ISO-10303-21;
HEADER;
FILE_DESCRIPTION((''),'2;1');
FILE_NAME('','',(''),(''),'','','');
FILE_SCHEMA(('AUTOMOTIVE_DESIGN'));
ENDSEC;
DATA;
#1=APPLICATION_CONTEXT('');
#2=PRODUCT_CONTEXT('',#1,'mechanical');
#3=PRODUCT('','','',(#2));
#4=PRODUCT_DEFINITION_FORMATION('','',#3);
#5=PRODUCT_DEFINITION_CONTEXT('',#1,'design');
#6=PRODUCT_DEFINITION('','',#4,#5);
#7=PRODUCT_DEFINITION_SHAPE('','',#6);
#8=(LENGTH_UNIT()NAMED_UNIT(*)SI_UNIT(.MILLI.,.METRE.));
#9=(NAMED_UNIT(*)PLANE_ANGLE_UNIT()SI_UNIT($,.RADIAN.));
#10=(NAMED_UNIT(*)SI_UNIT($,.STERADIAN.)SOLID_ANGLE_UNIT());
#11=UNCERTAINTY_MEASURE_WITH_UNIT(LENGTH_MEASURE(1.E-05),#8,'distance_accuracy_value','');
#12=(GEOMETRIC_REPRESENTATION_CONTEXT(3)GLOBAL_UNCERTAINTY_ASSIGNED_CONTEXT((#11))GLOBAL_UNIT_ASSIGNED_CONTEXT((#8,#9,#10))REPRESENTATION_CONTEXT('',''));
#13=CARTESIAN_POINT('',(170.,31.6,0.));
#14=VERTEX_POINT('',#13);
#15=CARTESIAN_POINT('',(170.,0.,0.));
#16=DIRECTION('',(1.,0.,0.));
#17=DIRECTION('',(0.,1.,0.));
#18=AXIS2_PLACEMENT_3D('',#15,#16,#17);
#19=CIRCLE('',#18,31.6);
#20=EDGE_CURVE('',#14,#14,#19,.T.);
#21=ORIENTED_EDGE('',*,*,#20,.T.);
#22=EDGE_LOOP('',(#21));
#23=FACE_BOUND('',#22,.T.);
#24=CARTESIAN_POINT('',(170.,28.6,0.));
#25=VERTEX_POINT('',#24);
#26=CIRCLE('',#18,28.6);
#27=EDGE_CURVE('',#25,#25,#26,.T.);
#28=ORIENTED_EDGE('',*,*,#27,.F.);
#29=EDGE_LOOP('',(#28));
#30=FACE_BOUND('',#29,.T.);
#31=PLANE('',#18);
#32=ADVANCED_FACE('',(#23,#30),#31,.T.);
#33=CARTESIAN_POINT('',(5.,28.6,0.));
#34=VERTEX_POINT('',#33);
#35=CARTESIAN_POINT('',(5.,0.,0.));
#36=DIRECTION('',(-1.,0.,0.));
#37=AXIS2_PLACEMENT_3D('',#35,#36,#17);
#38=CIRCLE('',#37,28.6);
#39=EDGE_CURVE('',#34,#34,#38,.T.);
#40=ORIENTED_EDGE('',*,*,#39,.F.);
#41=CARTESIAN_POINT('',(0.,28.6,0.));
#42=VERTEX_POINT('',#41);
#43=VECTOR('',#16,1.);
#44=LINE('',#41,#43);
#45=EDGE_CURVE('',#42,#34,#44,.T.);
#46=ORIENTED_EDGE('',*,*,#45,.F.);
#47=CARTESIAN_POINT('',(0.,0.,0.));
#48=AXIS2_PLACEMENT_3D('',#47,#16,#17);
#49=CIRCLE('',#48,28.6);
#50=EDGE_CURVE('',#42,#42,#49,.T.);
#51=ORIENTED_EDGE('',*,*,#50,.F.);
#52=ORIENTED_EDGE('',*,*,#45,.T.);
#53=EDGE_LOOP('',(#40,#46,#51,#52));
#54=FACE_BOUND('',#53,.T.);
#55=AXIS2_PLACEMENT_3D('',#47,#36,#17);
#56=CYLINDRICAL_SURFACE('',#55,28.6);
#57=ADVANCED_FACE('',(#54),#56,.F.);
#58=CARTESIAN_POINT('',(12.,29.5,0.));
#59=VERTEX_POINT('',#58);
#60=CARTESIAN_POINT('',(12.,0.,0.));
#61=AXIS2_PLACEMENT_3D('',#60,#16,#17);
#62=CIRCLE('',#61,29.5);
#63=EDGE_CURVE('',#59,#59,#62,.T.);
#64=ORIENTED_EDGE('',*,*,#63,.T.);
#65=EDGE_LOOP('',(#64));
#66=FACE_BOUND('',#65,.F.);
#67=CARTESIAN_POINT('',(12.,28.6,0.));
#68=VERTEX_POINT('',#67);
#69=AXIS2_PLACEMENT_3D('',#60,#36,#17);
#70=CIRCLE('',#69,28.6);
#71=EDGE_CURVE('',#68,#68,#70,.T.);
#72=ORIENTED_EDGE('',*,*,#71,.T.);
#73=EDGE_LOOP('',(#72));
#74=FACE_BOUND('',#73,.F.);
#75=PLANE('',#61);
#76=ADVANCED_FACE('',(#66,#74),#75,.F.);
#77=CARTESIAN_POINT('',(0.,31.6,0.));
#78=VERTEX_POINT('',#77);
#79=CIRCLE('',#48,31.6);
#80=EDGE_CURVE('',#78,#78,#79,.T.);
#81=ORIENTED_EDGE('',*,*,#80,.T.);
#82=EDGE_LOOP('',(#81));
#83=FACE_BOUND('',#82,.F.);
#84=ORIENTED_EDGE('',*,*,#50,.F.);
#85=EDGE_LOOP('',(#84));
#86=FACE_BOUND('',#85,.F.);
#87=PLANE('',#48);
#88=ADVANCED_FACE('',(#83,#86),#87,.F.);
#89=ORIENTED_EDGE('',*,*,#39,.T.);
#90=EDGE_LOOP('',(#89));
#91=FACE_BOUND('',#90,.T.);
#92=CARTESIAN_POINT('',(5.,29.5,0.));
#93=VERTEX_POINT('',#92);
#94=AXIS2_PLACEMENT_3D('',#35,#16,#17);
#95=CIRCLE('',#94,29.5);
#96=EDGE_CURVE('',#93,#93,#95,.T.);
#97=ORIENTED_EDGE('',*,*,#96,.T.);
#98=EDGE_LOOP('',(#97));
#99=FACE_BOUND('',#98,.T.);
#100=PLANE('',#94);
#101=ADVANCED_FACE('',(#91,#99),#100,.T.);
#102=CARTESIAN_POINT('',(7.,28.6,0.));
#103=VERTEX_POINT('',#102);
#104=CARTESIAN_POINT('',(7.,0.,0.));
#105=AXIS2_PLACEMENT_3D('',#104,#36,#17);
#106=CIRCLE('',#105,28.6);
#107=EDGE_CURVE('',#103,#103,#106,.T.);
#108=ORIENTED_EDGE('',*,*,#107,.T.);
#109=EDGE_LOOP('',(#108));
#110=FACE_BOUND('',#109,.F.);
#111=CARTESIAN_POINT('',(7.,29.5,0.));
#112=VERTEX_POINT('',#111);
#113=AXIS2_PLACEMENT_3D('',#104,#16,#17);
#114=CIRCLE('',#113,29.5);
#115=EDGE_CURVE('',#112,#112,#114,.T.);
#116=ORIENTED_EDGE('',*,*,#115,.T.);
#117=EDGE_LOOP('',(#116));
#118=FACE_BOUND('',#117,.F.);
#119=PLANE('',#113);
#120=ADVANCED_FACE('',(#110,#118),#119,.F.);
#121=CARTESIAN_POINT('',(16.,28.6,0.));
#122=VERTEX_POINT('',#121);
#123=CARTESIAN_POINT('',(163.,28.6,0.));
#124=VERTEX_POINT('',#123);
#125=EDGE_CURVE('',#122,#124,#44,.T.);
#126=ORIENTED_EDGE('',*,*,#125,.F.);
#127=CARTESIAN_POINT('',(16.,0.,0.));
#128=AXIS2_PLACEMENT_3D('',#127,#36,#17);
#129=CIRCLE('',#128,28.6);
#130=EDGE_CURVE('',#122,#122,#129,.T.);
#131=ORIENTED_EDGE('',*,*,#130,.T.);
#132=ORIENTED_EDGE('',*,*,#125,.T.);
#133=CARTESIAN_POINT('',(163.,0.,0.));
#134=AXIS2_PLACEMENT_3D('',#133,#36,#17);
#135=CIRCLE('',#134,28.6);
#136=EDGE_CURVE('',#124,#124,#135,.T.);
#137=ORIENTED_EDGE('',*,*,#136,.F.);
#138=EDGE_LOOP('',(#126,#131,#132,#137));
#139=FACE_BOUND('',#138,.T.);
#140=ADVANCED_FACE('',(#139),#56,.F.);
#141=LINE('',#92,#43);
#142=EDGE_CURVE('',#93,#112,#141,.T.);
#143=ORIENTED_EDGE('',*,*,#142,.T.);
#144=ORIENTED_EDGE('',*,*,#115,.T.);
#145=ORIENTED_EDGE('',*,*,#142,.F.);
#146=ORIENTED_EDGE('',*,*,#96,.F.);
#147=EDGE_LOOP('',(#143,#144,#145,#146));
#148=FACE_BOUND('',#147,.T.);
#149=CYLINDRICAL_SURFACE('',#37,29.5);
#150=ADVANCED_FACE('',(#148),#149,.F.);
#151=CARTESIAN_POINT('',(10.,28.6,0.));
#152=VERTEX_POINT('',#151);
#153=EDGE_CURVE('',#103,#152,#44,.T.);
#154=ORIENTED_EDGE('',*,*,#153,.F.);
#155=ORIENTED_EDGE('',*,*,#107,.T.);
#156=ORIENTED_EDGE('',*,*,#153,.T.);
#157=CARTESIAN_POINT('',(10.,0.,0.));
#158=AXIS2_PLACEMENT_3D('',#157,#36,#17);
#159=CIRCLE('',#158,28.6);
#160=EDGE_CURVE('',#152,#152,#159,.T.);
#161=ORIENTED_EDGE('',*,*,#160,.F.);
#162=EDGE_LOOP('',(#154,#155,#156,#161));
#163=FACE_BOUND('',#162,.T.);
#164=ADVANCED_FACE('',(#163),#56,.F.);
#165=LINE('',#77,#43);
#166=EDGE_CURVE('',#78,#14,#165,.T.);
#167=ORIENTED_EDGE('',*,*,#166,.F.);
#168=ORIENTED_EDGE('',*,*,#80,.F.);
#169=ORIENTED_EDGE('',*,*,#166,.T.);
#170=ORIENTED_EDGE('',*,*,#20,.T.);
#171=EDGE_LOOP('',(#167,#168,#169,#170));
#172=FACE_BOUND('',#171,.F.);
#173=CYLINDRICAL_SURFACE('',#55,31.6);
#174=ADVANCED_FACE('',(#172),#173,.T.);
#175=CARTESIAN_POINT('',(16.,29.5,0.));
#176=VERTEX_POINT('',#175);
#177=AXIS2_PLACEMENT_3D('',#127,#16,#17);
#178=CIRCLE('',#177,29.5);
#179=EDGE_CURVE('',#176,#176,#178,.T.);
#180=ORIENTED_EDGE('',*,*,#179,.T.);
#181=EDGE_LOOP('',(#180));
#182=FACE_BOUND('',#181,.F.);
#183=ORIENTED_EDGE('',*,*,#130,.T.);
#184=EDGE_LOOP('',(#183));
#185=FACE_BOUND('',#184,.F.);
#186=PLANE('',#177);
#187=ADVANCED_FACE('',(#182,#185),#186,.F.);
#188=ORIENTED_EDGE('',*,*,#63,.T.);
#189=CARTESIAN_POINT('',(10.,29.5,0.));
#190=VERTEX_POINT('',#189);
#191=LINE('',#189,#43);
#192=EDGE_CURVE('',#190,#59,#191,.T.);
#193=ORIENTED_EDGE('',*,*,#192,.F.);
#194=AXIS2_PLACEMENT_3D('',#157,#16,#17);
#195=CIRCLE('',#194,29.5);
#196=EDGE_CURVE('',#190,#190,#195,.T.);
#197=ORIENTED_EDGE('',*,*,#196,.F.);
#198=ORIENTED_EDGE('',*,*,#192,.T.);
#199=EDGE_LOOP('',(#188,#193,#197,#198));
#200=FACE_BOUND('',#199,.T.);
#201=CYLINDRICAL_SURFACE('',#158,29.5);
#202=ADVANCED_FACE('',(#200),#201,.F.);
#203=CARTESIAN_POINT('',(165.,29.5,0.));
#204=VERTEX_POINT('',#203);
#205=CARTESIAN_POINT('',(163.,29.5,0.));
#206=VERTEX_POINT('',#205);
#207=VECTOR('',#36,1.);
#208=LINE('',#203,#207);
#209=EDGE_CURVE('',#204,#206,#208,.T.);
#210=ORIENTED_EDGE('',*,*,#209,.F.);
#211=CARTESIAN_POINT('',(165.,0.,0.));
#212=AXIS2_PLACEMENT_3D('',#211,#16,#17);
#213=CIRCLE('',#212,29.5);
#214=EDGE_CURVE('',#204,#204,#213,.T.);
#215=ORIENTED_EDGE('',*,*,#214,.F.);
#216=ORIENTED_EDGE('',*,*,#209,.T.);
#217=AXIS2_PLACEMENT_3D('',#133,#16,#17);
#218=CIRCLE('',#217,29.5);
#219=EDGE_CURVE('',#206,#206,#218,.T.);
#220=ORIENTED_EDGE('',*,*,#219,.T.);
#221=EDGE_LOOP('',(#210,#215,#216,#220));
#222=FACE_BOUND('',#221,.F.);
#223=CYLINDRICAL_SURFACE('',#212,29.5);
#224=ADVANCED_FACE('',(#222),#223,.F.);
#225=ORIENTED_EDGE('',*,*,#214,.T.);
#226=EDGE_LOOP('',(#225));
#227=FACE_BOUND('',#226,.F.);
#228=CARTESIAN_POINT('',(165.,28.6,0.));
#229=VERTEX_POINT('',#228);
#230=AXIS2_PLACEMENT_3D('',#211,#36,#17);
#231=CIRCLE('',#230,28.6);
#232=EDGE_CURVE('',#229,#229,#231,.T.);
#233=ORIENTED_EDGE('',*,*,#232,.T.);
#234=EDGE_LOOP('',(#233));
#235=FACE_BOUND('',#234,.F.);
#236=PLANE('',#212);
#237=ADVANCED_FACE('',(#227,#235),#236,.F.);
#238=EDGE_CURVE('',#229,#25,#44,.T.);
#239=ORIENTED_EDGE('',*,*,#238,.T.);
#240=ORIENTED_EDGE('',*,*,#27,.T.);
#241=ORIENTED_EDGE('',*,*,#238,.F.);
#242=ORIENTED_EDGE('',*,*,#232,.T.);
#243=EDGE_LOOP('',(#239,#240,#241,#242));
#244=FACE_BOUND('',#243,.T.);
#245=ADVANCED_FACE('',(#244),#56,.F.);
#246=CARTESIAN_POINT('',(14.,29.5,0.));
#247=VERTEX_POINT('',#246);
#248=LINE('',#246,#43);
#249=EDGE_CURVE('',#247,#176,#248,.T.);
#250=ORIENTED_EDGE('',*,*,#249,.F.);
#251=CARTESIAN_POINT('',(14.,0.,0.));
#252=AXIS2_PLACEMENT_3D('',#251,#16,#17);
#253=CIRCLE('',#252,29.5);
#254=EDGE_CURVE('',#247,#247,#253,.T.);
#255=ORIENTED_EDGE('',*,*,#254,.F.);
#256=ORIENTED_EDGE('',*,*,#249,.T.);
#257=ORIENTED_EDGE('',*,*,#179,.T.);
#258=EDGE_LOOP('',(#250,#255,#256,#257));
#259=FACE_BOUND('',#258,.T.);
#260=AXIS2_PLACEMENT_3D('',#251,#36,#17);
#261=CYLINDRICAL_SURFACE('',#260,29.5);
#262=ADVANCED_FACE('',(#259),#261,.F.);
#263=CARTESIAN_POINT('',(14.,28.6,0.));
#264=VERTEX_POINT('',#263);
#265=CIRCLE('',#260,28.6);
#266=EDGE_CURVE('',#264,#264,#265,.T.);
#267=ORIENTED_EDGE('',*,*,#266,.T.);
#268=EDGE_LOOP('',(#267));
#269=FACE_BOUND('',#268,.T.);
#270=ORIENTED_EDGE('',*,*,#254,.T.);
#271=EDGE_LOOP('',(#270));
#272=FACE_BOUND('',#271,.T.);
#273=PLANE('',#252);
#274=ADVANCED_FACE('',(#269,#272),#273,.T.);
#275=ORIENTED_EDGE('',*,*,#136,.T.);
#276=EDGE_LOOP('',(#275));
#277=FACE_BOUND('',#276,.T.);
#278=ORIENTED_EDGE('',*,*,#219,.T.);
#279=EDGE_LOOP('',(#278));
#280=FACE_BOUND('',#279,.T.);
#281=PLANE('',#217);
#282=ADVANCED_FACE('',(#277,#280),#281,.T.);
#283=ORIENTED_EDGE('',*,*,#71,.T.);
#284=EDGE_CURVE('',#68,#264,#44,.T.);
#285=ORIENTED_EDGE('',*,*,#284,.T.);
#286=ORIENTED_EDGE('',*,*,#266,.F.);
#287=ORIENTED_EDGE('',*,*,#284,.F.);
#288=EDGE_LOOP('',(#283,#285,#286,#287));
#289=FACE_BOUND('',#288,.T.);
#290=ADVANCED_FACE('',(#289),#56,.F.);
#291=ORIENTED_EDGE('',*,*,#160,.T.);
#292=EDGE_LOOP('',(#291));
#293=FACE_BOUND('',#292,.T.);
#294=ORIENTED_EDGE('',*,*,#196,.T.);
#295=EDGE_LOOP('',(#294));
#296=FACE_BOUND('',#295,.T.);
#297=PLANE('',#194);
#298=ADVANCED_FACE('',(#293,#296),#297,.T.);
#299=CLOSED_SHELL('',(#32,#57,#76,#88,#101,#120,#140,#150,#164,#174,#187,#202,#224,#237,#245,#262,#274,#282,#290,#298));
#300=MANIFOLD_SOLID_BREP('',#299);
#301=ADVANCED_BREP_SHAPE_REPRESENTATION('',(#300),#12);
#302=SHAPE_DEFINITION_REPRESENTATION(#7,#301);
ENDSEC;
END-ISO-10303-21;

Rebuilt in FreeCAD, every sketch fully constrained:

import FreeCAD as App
import Part
import Sketcher

V = App.Vector

doc = App.newDocument("Part")
body = doc.addObject("PartDesign::Body", "Body")

# Sketch on YZ plane
sketch1 = doc.addObject("Sketcher::SketchObject", "Sketch")
body.addObject(sketch1)
sketch1.AttachmentSupport = (doc.YZ_Plane, [""])
sketch1.MapMode = "FlatFace"
sketch1.addGeometry(Part.Circle(V(0, 0, 0), V(0, 0, 1), 31.6), False)
sketch1.addGeometry(Part.Circle(V(0, 0, 0), V(0, 0, 1), 28.6), False)
sketch1.addConstraint(Sketcher.Constraint("Coincident", 0, 3, -1, 1))
sketch1.addConstraint(Sketcher.Constraint("Coincident", 1, 3, -1, 1))
sketch1.addConstraint(Sketcher.Constraint("Diameter", 0, 63.2))
sketch1.addConstraint(Sketcher.Constraint("Diameter", 1, 57.2))
pad1 = doc.addObject("PartDesign::Pad", "Pad")
body.addObject(pad1)
pad1.Profile = sketch1
pad1.Length = 170

# Sketch on YZ plane
sketch2 = doc.addObject("Sketcher::SketchObject", "Sketch001")
body.addObject(sketch2)
sketch2.AttachmentSupport = (doc.YZ_Plane, [""])
sketch2.MapMode = "FlatFace"
sketch2.AttachmentOffset = App.Placement(V(0, 0, 5), App.Rotation())
sketch2.addGeometry(Part.Circle(V(0, 0, 0), V(0, 0, 1), 29.5), False)
sketch2.addConstraint(Sketcher.Constraint("Coincident", 0, 3, -1, 1))
sketch2.addConstraint(Sketcher.Constraint("Diameter", 0, 59.0))
pocket1 = doc.addObject("PartDesign::Pocket", "Pocket")
body.addObject(pocket1)
pocket1.Profile = sketch2
pocket1.Length = 2
pocket1.Reversed = True

# Sketch on YZ plane
sketch3 = doc.addObject("Sketcher::SketchObject", "Sketch002")
body.addObject(sketch3)
sketch3.AttachmentSupport = (doc.YZ_Plane, [""])
sketch3.MapMode = "FlatFace"
sketch3.AttachmentOffset = App.Placement(V(0, 0, 165), App.Rotation())
sketch3.addGeometry(Part.Circle(V(0, 0, 0), V(0, 0, 1), 29.5), False)
sketch3.addConstraint(Sketcher.Constraint("Coincident", 0, 3, -1, 1))
sketch3.addConstraint(Sketcher.Constraint("Diameter", 0, 59.0))
pocket2 = doc.addObject("PartDesign::Pocket", "Pocket001")
body.addObject(pocket2)
pocket2.Profile = sketch3
pocket2.Length = 2

# Sketch on YZ plane
sketch4 = doc.addObject("Sketcher::SketchObject", "Sketch003")
body.addObject(sketch4)
sketch4.AttachmentSupport = (doc.YZ_Plane, [""])
sketch4.MapMode = "FlatFace"
sketch4.AttachmentOffset = App.Placement(V(0, 0, 10), App.Rotation())
sketch4.addGeometry(Part.Circle(V(0, 0, 0), V(0, 0, 1), 29.5), False)
sketch4.addConstraint(Sketcher.Constraint("Coincident", 0, 3, -1, 1))
sketch4.addConstraint(Sketcher.Constraint("Diameter", 0, 59.0))
pocket3 = doc.addObject("PartDesign::Pocket", "Pocket002")
body.addObject(pocket3)
pocket3.Profile = sketch4
pocket3.Length = 2
pocket3.Reversed = True

# Sketch on YZ plane
sketch5 = doc.addObject("Sketcher::SketchObject", "Sketch004")
body.addObject(sketch5)
sketch5.AttachmentSupport = (doc.YZ_Plane, [""])
sketch5.MapMode = "FlatFace"
sketch5.AttachmentOffset = App.Placement(V(0, 0, 14), App.Rotation())
sketch5.addGeometry(Part.Circle(V(0, 0, 0), V(0, 0, 1), 29.5), False)
sketch5.addConstraint(Sketcher.Constraint("Coincident", 0, 3, -1, 1))
sketch5.addConstraint(Sketcher.Constraint("Diameter", 0, 59.0))
pocket4 = doc.addObject("PartDesign::Pocket", "Pocket003")
body.addObject(pocket4)
pocket4.Profile = sketch5
pocket4.Length = 2
pocket4.Reversed = True

doc.recompute()
